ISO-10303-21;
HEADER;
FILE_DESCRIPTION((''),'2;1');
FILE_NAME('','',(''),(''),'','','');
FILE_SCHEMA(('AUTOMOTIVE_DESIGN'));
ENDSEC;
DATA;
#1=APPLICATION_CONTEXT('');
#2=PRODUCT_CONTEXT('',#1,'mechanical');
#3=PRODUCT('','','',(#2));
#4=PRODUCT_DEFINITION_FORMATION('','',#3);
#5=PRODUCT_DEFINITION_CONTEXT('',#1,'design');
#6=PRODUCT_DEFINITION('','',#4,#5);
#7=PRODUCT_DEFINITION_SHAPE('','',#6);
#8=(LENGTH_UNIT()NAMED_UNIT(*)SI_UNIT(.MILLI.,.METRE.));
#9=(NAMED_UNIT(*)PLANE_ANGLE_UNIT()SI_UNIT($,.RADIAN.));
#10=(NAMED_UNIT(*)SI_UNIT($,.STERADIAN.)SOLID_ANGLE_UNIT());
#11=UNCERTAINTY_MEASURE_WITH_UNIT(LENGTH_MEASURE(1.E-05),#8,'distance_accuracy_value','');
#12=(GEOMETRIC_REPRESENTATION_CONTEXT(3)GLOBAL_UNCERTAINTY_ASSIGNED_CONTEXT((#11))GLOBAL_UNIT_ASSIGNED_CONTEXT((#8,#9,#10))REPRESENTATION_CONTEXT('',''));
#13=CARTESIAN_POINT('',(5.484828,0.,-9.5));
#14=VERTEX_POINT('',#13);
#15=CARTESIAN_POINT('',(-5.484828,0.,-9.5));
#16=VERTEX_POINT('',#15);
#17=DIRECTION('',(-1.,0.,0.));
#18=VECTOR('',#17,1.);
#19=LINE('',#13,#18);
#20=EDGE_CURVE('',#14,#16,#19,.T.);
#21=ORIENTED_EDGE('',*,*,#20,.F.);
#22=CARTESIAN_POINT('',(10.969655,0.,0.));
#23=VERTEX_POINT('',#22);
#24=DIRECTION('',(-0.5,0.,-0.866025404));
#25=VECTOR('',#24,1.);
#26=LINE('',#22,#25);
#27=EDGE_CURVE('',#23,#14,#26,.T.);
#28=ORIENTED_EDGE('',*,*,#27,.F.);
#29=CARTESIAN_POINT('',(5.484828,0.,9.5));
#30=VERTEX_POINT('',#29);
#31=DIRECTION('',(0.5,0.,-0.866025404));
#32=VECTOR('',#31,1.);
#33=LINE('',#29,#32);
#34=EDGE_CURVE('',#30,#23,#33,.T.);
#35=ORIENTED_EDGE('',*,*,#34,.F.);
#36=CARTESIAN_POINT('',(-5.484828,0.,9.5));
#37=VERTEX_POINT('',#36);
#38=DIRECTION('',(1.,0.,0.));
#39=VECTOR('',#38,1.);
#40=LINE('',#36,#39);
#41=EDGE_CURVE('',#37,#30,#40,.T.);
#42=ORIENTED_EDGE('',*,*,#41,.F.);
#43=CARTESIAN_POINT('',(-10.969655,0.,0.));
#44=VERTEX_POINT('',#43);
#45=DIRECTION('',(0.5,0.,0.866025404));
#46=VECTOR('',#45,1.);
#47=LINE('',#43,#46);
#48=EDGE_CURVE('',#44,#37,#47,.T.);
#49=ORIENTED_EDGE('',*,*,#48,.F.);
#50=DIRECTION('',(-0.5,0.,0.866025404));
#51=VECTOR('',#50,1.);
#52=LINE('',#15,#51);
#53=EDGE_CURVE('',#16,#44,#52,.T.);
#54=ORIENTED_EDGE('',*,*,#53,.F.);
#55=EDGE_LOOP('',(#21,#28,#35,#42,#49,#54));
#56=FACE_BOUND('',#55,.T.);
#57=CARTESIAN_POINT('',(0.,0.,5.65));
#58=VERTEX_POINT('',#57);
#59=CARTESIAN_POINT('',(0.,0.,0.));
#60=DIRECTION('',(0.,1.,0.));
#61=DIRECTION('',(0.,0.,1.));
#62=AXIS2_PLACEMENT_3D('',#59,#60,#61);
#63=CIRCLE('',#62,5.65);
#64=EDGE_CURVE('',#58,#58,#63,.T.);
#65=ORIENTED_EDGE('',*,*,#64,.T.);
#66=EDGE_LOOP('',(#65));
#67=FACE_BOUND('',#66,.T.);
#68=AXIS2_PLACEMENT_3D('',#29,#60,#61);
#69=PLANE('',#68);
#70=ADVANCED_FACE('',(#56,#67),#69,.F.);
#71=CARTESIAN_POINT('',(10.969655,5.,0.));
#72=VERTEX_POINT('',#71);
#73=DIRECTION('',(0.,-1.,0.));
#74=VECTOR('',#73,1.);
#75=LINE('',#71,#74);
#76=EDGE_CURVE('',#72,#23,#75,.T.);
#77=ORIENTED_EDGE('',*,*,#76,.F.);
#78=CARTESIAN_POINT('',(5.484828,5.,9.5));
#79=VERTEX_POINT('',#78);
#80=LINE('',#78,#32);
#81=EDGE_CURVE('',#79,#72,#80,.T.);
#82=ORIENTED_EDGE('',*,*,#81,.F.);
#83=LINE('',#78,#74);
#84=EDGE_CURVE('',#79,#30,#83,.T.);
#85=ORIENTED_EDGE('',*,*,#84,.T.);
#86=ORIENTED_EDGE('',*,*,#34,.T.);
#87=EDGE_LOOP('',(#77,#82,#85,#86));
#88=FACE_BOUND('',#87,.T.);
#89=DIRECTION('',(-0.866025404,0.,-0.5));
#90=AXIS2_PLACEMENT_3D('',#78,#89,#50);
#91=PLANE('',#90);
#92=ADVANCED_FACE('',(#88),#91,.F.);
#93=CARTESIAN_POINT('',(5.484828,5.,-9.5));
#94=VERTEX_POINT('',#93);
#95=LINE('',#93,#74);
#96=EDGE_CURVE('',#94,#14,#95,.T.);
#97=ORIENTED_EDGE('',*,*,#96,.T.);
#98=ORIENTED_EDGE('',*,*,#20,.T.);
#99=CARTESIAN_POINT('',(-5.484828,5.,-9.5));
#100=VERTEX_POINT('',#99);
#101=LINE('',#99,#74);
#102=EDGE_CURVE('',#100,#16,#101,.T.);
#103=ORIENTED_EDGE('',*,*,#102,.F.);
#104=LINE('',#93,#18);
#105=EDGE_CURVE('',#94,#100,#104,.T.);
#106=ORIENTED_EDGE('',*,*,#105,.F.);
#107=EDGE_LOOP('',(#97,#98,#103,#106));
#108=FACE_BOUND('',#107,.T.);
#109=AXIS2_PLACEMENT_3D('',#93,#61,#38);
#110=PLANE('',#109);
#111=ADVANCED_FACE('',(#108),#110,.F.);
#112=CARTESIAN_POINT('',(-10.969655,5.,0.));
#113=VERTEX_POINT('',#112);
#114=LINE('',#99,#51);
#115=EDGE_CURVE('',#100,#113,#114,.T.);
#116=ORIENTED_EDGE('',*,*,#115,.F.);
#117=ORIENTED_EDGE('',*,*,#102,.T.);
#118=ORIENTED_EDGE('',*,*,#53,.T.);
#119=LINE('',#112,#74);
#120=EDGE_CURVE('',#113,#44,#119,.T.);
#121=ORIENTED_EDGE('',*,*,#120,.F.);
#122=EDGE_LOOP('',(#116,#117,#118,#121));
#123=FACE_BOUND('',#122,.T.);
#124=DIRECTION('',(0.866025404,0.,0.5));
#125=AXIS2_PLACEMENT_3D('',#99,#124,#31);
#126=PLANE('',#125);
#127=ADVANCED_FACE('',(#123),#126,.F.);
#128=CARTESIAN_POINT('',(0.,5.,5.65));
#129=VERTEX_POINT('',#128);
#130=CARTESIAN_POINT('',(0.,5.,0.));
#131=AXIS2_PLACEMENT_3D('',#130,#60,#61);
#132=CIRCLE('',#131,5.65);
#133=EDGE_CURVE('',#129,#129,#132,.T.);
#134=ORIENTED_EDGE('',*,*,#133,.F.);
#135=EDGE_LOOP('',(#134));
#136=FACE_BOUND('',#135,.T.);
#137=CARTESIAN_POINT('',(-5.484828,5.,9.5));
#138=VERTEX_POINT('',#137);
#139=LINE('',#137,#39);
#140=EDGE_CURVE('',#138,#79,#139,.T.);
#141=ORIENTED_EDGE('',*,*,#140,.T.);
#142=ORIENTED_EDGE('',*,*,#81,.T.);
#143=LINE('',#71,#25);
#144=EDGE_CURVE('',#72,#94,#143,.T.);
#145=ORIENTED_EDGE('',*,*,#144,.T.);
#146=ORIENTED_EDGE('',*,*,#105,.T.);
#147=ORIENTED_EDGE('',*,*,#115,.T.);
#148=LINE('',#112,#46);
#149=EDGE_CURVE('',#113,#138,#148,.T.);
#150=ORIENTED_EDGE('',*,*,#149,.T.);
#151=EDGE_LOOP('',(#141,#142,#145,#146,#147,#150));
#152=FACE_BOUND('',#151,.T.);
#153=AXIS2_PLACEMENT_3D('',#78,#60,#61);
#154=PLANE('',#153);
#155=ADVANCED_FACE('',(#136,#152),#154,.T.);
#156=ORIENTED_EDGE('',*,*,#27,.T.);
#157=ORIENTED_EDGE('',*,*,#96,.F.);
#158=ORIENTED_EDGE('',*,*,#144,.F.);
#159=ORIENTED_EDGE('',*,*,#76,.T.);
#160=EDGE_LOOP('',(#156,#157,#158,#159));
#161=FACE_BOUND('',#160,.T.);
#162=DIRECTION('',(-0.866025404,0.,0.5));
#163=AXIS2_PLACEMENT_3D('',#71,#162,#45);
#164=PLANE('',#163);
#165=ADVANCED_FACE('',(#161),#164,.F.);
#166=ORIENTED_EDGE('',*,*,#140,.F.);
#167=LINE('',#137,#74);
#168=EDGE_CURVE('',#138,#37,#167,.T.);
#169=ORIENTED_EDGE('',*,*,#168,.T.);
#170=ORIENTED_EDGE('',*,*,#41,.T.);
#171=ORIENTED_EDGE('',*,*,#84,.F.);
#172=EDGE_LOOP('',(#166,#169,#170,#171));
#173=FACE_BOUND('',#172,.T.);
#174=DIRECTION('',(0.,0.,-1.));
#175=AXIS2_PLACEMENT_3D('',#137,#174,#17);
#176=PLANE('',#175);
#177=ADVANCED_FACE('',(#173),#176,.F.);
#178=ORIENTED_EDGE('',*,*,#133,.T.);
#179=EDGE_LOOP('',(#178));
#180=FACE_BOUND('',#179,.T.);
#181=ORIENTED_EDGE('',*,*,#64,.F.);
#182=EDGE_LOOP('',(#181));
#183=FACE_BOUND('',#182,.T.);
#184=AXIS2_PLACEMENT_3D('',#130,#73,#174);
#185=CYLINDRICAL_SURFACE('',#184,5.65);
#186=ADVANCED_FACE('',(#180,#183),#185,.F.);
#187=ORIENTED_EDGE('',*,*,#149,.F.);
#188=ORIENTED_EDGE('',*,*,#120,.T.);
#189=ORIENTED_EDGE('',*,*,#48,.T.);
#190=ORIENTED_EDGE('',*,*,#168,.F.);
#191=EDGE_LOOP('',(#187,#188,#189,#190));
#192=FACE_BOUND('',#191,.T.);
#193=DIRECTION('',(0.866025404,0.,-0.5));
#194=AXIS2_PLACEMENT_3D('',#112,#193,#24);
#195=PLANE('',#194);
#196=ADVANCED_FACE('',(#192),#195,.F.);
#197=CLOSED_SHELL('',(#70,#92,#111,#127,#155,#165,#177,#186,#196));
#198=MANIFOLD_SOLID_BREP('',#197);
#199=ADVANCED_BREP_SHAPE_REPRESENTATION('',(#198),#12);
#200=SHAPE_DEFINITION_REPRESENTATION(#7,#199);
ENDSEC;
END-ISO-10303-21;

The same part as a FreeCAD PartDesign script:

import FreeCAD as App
import Part
import Sketcher

V = App.Vector
Q = App.Units.Quantity


def add_polygon(sketch, points):
    """Adds a closed chain of lines whose ends are joined by coincident constraints."""
    first, n = sketch.GeometryCount, len(points)
    for a, b in zip(points, points[1:] + points[:1]):
        sketch.addGeometry(Part.LineSegment(App.Vector(*a, 0), App.Vector(*b, 0)), False)
    for i in range(n):
        sketch.addConstraint(Sketcher.Constraint("Coincident", first + i, 2, first + (i + 1) % n, 1))

doc = App.newDocument("Part")
body = doc.addObject("PartDesign::Body", "Body")

# Sketch on XZ plane
sketch1 = body.newObject("Sketcher::SketchObject", "Sketch")
sketch1.AttachmentSupport = (doc.getObject("XZ_Plane"), [""])
sketch1.MapMode = "FlatFace"
add_polygon(sketch1, [(5.484828, 9.5), (10.969655, 0), (5.484828, -9.5), (-5.484828, -9.5), (-10.969655, 0), (-5.484828, 9.5)])  # lines 0-5
sketch1.addGeometry(Part.Circle(V(0, 0, 0), V(0, 0, 1), 5.65), False)  # 6
sketch1.addConstraint([
    Sketcher.Constraint("Horizontal", 2),
    Sketcher.Constraint("Horizontal", 5),
    Sketcher.Constraint("Coincident", 6, 3, -1, 1),
    Sketcher.Constraint("Symmetric", 0, 2, 3, 2, -1, 1),
    Sketcher.Constraint("Symmetric", 1, 2, 4, 2, -1, 1),
    Sketcher.Constraint("PointOnObject", 0, 2, -1),
    Sketcher.Constraint("Parallel", 0, 3),
    Sketcher.Constraint("Vertical", 2, 2, 4, 2),
    Sketcher.Constraint("Diameter", 6, 11.3),
    Sketcher.Constraint("Angle", 0, Q("-60 deg")),
    Sketcher.Constraint("DistanceY", 2, 2, 4, 2, 19.0),
    Sketcher.Constraint("DistanceX", 2, 2, 2, 1, 10.969655),
])
pad1 = body.newObject("PartDesign::Pad", "Pad")
pad1.Profile = sketch1
pad1.Length = 5
pad1.Reversed = True

doc.recompute()
